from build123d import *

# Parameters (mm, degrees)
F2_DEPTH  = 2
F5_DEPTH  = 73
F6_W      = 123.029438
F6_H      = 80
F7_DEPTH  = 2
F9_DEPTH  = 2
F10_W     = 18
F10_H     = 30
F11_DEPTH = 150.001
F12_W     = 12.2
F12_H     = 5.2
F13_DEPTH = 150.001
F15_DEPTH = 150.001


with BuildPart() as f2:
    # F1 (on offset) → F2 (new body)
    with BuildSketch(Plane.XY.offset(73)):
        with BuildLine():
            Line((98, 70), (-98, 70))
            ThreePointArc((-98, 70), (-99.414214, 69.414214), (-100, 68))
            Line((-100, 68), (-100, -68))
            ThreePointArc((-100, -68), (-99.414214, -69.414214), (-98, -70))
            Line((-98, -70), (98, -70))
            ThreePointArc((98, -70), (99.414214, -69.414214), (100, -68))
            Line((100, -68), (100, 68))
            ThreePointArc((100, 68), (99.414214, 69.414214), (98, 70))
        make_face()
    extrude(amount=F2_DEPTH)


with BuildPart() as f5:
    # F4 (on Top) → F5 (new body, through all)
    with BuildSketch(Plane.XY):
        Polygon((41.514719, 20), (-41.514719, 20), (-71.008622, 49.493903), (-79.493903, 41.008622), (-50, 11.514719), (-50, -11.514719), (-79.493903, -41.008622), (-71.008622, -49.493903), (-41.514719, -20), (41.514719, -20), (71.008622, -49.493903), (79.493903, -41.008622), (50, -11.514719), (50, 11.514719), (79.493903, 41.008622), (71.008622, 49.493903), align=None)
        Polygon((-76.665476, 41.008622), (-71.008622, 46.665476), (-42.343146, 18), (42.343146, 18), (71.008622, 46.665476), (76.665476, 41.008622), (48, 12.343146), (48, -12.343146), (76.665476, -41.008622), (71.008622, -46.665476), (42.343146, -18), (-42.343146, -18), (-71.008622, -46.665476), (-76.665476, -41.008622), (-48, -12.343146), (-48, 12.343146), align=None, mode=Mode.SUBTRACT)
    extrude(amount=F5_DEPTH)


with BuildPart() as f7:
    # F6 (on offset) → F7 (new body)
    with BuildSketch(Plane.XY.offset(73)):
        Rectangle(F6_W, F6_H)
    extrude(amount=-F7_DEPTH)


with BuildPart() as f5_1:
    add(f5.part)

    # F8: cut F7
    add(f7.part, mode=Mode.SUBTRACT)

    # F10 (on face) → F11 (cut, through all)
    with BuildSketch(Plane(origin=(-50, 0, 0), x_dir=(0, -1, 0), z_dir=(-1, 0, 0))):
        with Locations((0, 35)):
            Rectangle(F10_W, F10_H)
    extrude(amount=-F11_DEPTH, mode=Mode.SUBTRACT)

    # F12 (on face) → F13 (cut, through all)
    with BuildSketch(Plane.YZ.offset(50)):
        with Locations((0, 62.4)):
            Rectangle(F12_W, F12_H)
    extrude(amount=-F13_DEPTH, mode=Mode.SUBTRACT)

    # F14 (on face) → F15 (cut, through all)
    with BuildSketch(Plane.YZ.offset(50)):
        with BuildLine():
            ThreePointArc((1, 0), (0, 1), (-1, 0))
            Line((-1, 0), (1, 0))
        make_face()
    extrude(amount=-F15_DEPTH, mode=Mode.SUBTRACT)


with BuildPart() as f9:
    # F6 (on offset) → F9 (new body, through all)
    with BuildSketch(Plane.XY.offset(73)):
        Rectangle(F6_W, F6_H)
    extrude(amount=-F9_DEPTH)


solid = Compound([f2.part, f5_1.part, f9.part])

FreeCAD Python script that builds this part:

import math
import FreeCAD as App
import Part
import Sketcher
from FreeCAD import Vector
Q = App.Units.Quantity


def add_polygon(sketch, points):
    """Adds a closed chain of lines whose ends are joined by coincident constraints."""
    first, n = sketch.GeometryCount, len(points)
    for a, b in zip(points, points[1:] + points[:1]):
        sketch.addGeometry(Part.LineSegment(App.Vector(*a, 0), App.Vector(*b, 0)), False)
    for i in range(n):
        sketch.addConstraint(Sketcher.Constraint("Coincident", first + i, 2, first + (i + 1) % n, 1))

doc = App.newDocument("Part")
body = doc.addObject("PartDesign::Body", "Body")

# Sketch on XY plane
sketch1 = body.newObject("Sketcher::SketchObject", "Sketch")
sketch1.AttachmentSupport = (doc.getObject("XY_Plane"), [""])
sketch1.MapMode = "FlatFace"
sketch1.AttachmentOffset = App.Placement(Vector(0, 0, 73), App.Rotation())
sketch1.addGeometry(Part.LineSegment(Vector(98, 70, 0), Vector(-98, 70, 0)), False)
sketch1.addGeometry(Part.ArcOfCircle(Part.Circle(Vector(-98, 68, 0), Vector(0, 0, 1), 2), math.radians(90), math.radians(180)), False)
sketch1.addGeometry(Part.LineSegment(Vector(-100, 68, 0), Vector(-100, -68, 0)), False)
sketch1.addGeometry(Part.ArcOfCircle(Part.Circle(Vector(-98, -68, 0), Vector(0, 0, 1), 2), math.radians(180), math.radians(270)), False)
sketch1.addGeometry(Part.LineSegment(Vector(-98, -70, 0), Vector(98, -70, 0)), False)
sketch1.addGeometry(Part.ArcOfCircle(Part.Circle(Vector(98, -68, 0), Vector(0, 0, 1), 2), math.radians(-90), math.radians(0)), False)
sketch1.addGeometry(Part.LineSegment(Vector(100, -68, 0), Vector(100, 68, 0)), False)
sketch1.addGeometry(Part.ArcOfCircle(Part.Circle(Vector(98, 68, 0), Vector(0, 0, 1), 2), math.radians(0), math.radians(90)), False)
sketch1.addConstraint(Sketcher.Constraint("Tangent", 0, 2, 1, 1))
sketch1.addConstraint(Sketcher.Constraint("Tangent", 1, 2, 2, 1))
sketch1.addConstraint(Sketcher.Constraint("Tangent", 2, 2, 3, 1))
sketch1.addConstraint(Sketcher.Constraint("Tangent", 3, 2, 4, 1))
sketch1.addConstraint(Sketcher.Constraint("Tangent", 4, 2, 5, 1))
sketch1.addConstraint(Sketcher.Constraint("Tangent", 5, 2, 6, 1))
sketch1.addConstraint(Sketcher.Constraint("Tangent", 6, 2, 7, 1))
sketch1.addConstraint(Sketcher.Constraint("Tangent", 7, 2, 0, 1))
sketch1.addConstraint(Sketcher.Constraint("Horizontal", 0))
sketch1.addConstraint(Sketcher.Constraint("Vertical", 2))
sketch1.addConstraint(Sketcher.Constraint("Horizontal", 4))
sketch1.addConstraint(Sketcher.Constraint("Vertical", 6))
sketch1.addConstraint(Sketcher.Constraint("Equal", 1, 3))
sketch1.addConstraint(Sketcher.Constraint("Equal", 3, 5))
sketch1.addConstraint(Sketcher.Constraint("Equal", 5, 7))
sketch1.addConstraint(Sketcher.Constraint("Symmetric", 1, 3, 5, 3, -1, 1))
sketch1.addConstraint(Sketcher.Constraint("Radius", 1, Q("1.999999 mm")))
sketch1.addConstraint(Sketcher.Constraint("DistanceX", 0, 2, 0, 1, Q("196 mm")))
sketch1.addConstraint(Sketcher.Constraint("DistanceY", 2, 2, 2, 1, Q("136 mm")))
pad1 = body.newObject("PartDesign::Pad", "Pad")
pad1.Profile = sketch1
pad1.Length = 2
body2 = doc.addObject("PartDesign::Body", "Body001")

# Sketch on XY plane
sketch2 = body2.newObject("Sketcher::SketchObject", "Sketch001")
sketch2.AttachmentSupport = (doc.getObject("XY_Plane001"), [""])
sketch2.MapMode = "FlatFace"
add_polygon(sketch2, [(42, 20), (-42, 20), (-71, 49), (-79, 41), (-50, 12), (-50, -12), (-79, -41), (-71, -49), (-42, -20), (42, -20), (71, -49), (79, -41), (50, -12), (50, 12), (79, 41), (71, 49)])  # lines 0-15
add_polygon(sketch2, [(-48, 12), (-77, 41), (-71, 47), (-42, 18), (42, 18), (71, 47), (77, 41), (48, 12), (48, -12), (77, -41), (71, -47), (42, -18), (-42, -18), (-71, -47), (-77, -41), (-48, -12)])  # lines 16-31
sketch2.addConstraint(Sketcher.Constraint("Horizontal", 0))
sketch2.addConstraint(Sketcher.Constraint("Vertical", 4))
sketch2.addConstraint(Sketcher.Constraint("Horizontal", 8))
sketch2.addConstraint(Sketcher.Constraint("Vertical", 12))
sketch2.addConstraint(Sketcher.Constraint("Horizontal", 19))
sketch2.addConstraint(Sketcher.Constraint("Vertical", 23))
sketch2.addConstraint(Sketcher.Constraint("Horizontal", 27))
sketch2.addConstraint(Sketcher.Constraint("Vertical", 31))
sketch2.addConstraint(Sketcher.Constraint("Symmetric", 0, 2, 8, 2, -1, 1))
sketch2.addConstraint(Sketcher.Constraint("Symmetric", 1, 2, 9, 2, -1, 1))
sketch2.addConstraint(Sketcher.Constraint("Symmetric", 2, 2, 10, 2, -1, 1))
sketch2.addConstraint(Sketcher.Constraint("Symmetric", 3, 2, 11, 2, -1, 1))
sketch2.addConstraint(Sketcher.Constraint("Symmetric", 5, 2, 13, 2, -1, 1))
sketch2.addConstraint(Sketcher.Constraint("Symmetric", 6, 2, 14, 2, -1, 1))
sketch2.addConstraint(Sketcher.Constraint("Symmetric", 16, 2, 24, 2, -1, 1))
sketch2.addConstraint(Sketcher.Constraint("Symmetric", 17, 2, 25, 2, -1, 1))
sketch2.addConstraint(Sketcher.Constraint("Symmetric", 18, 2, 26, 2, -1, 1))
sketch2.addConstraint(Sketcher.Constraint("Symmetric", 20, 2, 28, 2, -1, 1))
sketch2.addConstraint(Sketcher.Constraint("Symmetric", 21, 2, 29, 2, -1, 1))
sketch2.addConstraint(Sketcher.Constraint("Symmetric", 22, 2, 30, 2, -1, 1))
sketch2.addConstraint(Sketcher.Constraint("Symmetric", 6, 2, 9, 2, -2))
sketch2.addConstraint(Sketcher.Constraint("Symmetric", 5, 2, 10, 2, -2))
sketch2.addConstraint(Sketcher.Constraint("Symmetric", 17, 2, 20, 2, -2))
sketch2.addConstraint(Sketcher.Constraint("Symmetric", 16, 2, 21, 2, -2))
sketch2.addConstraint(Sketcher.Constraint("Perpendicular", 1, 2))
sketch2.addConstraint(Sketcher.Constraint("Perpendicular", 2, 3))
sketch2.addConstraint(Sketcher.Constraint("Perpendicular", 3, 5))
sketch2.addConstraint(Sketcher.Constraint("Perpendicular", 5, 6))
sketch2.addConstraint(Sketcher.Constraint("Perpendicular", 6, 7))
sketch2.addConstraint(Sketcher.Constraint("Perpendicular", 11, 13))
sketch2.addConstraint(Sketcher.Constraint("Perpendicular", 14, 15))
sketch2.addConstraint(Sketcher.Constraint("Perpendicular", 15, 16))
sketch2.addConstraint(Sketcher.Constraint("Perpendicular", 16, 17))
sketch2.addConstraint(Sketcher.Constraint("Perpendicular", 17, 18))
sketch2.addConstraint(Sketcher.Constraint("Perpendicular", 18, 20))
sketch2.addConstraint(Sketcher.Constraint("Perpendicular", 21, 22))
sketch2.addConstraint(Sketcher.Constraint("Perpendicular", 22, 24))
sketch2.addConstraint(Sketcher.Constraint("Perpendicular", 26, 28))
sketch2.addConstraint(Sketcher.Constraint("Horizontal", 13, 2, 16, 2))
sketch2.addConstraint(Sketcher.Constraint("Vertical", 6, 2, 17, 2))
sketch2.addConstraint(Sketcher.Constraint("Equal", 1, 3))
sketch2.addConstraint(Sketcher.Constraint("Equal", 16, 18))
sketch2.addConstraint(Sketcher.Constraint("Distance", 2, Q("11.999999 mm")))
sketch2.addConstraint(Sketcher.Constraint("Distance", 17, Q("8 mm")))
sketch2.addConstraint(Sketcher.Constraint("DistanceY", -1, 1, 0, 2, Q("20 mm")))
sketch2.addConstraint(Sketcher.Constraint("DistanceX", 3, 2, -1, 1, Q("50 mm")))
sketch2.addConstraint(Sketcher.Constraint("DistanceY", -1, 1, 18, 2, Q("18 mm")))
sketch2.addConstraint(Sketcher.Constraint("DistanceY", 4, 2, 2, 2, Q("52.523341 mm")))
pad2 = body2.newObject("PartDesign::Pad", "Pad001")
pad2.Profile = sketch2
pad2.Length = 73
body3 = doc.addObject("PartDesign::Body", "Body002")

# Sketch on XY plane
sketch3 = body3.newObject("Sketcher::SketchObject", "Sketch002")
sketch3.AttachmentSupport = (doc.getObject("XY_Plane002"), [""])
sketch3.MapMode = "FlatFace"
sketch3.AttachmentOffset = App.Placement(Vector(0, 0, 73), App.Rotation())
add_polygon(sketch3, [(-62, 40), (-62, -40), (62, -40), (62, 40)])  # lines 0-3
sketch3.addConstraint(Sketcher.Constraint("Vertical", 0))
sketch3.addConstraint(Sketcher.Constraint("Horizontal", 1))
sketch3.addConstraint(Sketcher.Constraint("Vertical", 2))
sketch3.addConstraint(Sketcher.Constraint("Horizontal", 3))
sketch3.addConstraint(Sketcher.Constraint("Symmetric", 0, 2, 2, 2, -1, 1))
sketch3.addConstraint(Sketcher.Constraint("DistanceY", 0, 2, 0, 1, Q("80 mm")))
sketch3.addConstraint(Sketcher.Constraint("DistanceX", 1, 1, 1, 2, Q("123.029438 mm")))
pad3 = body3.newObject("PartDesign::Pad", "Pad002")
pad3.Profile = sketch3
pad3.Length = 2
pad3.Reversed = True
doc.recompute()

boolean = body2.newObject("PartDesign::Boolean", "Boolean")
boolean.Type = "Cut"
boolean.addObjects([body3])

# Sketch on YZ plane
sketch4 = body2.newObject("Sketcher::SketchObject", "Sketch003")
sketch4.AttachmentSupport = (doc.getObject("YZ_Plane001"), [""])
sketch4.MapMode = "FlatFace"
sketch4.AttachmentOffset = App.Placement(Vector(0, 0, -50), App.Rotation())
add_polygon(sketch4, [(9, 50), (9, 20), (-9, 20), (-9, 50)])  # lines 0-3
sketch4.addConstraint(Sketcher.Constraint("Vertical", 0))
sketch4.addConstraint(Sketcher.Constraint("Horizontal", 1))
sketch4.addConstraint(Sketcher.Constraint("Vertical", 2))
sketch4.addConstraint(Sketcher.Constraint("Horizontal", 3))
sketch4.addConstraint(Sketcher.Constraint("DistanceX", 1, 2, 1, 1, Q("18 mm")))
sketch4.addConstraint(Sketcher.Constraint("DistanceY", 0, 2, 0, 1, Q("30 mm")))
sketch4.addConstraint(Sketcher.Constraint("DistanceX", -1, 1, 0, 2, Q("9 mm")))
sketch4.addConstraint(Sketcher.Constraint("DistanceY", -1, 1, 0, 2, Q("20 mm")))
pocket1 = body2.newObject("PartDesign::Pocket", "Pocket")
pocket1.Profile = sketch4
pocket1.Type = "ThroughAll"
pocket1.Reversed = True

# Sketch on YZ plane
sketch5 = body2.newObject("Sketcher::SketchObject", "Sketch004")
sketch5.AttachmentSupport = (doc.getObject("YZ_Plane001"), [""])
sketch5.MapMode = "FlatFace"
sketch5.AttachmentOffset = App.Placement(Vector(0, 0, 50), App.Rotation())
add_polygon(sketch5, [(-6, 65), (-6, 60), (6, 60), (6, 65)])  # lines 0-3
sketch5.addConstraint(Sketcher.Constraint("Vertical", 0))
sketch5.addConstraint(Sketcher.Constraint("Horizontal", 1))
sketch5.addConstraint(Sketcher.Constraint("Vertical", 2))
sketch5.addConstraint(Sketcher.Constraint("Horizontal", 3))
sketch5.addConstraint(Sketcher.Constraint("DistanceX", 1, 1, 1, 2, Q("12.2 mm")))
sketch5.addConstraint(Sketcher.Constraint("DistanceY", 0, 2, 0, 1, Q("5.2 mm")))
sketch5.addConstraint(Sketcher.Constraint("DistanceY", -1, 1, 2, 2, Q("65 mm")))
sketch5.addConstraint(Sketcher.Constraint("DistanceX", 0, 2, -1, 1, Q("6.1 mm")))
pocket2 = body2.newObject("PartDesign::Pocket", "Pocket001")
pocket2.Profile = sketch5
pocket2.Type = "ThroughAll"

# Sketch on YZ plane
sketch6 = body2.newObject("Sketcher::SketchObject", "Sketch005")
sketch6.AttachmentSupport = (doc.getObject("YZ_Plane001"), [""])
sketch6.MapMode = "FlatFace"
sketch6.AttachmentOffset = App.Placement(Vector(0, 0, 50), App.Rotation())
sketch6.addGeometry(Part.ArcOfCircle(Part.Circle(Vector(0, 0, 0), Vector(0, 0, 1), 1), math.radians(0), math.radians(180)), False)
sketch6.addGeometry(Part.LineSegment(Vector(-1, 0, 0), Vector(1, 0, 0)), False)
sketch6.addConstraint(Sketcher.Constraint("Coincident", 0, 1, 1, 2))
sketch6.addConstraint(Sketcher.Constraint("Coincident", 1, 1, 0, 2))
sketch6.addConstraint(Sketcher.Constraint("Horizontal", 1))
sketch6.addConstraint(Sketcher.Constraint("Coincident", 0, 3, -1, 1))
sketch6.addConstraint(Sketcher.Constraint("PointOnObject", 0, 1, -1))
sketch6.addConstraint(Sketcher.Constraint("Radius", 0, Q("1 mm")))
pocket3 = body2.newObject("PartDesign::Pocket", "Pocket002")
pocket3.Profile = sketch6
pocket3.Type = "ThroughAll"
body4 = doc.addObject("PartDesign::Body", "Body003")

# Sketch on XY plane
sketch7 = body4.newObject("Sketcher::SketchObject", "Sketch006")
sketch7.AttachmentSupport = (doc.getObject("XY_Plane003"), [""])
sketch7.MapMode = "FlatFace"
sketch7.AttachmentOffset = App.Placement(Vector(0, 0, 73), App.Rotation())
add_polygon(sketch7, [(-62, 40), (-62, -40), (62, -40), (62, 40)])  # lines 0-3
sketch7.addConstraint(Sketcher.Constraint("Vertical", 0))
sketch7.addConstraint(Sketcher.Constraint("Horizontal", 1))
sketch7.addConstraint(Sketcher.Constraint("Vertical", 2))
sketch7.addConstraint(Sketcher.Constraint("Horizontal", 3))
sketch7.addConstraint(Sketcher.Constraint("Symmetric", 0, 2, 2, 2, -1, 1))
sketch7.addConstraint(Sketcher.Constraint("DistanceY", 0, 2, 0, 1, Q("80 mm")))
sketch7.addConstraint(Sketcher.Constraint("DistanceX", 1, 1, 1, 2, Q("123.029438 mm")))
pad4 = body4.newObject("PartDesign::Pad", "Pad003")
pad4.Profile = sketch7
pad4.Length = 2
pad4.Reversed = True

doc.recompute()
